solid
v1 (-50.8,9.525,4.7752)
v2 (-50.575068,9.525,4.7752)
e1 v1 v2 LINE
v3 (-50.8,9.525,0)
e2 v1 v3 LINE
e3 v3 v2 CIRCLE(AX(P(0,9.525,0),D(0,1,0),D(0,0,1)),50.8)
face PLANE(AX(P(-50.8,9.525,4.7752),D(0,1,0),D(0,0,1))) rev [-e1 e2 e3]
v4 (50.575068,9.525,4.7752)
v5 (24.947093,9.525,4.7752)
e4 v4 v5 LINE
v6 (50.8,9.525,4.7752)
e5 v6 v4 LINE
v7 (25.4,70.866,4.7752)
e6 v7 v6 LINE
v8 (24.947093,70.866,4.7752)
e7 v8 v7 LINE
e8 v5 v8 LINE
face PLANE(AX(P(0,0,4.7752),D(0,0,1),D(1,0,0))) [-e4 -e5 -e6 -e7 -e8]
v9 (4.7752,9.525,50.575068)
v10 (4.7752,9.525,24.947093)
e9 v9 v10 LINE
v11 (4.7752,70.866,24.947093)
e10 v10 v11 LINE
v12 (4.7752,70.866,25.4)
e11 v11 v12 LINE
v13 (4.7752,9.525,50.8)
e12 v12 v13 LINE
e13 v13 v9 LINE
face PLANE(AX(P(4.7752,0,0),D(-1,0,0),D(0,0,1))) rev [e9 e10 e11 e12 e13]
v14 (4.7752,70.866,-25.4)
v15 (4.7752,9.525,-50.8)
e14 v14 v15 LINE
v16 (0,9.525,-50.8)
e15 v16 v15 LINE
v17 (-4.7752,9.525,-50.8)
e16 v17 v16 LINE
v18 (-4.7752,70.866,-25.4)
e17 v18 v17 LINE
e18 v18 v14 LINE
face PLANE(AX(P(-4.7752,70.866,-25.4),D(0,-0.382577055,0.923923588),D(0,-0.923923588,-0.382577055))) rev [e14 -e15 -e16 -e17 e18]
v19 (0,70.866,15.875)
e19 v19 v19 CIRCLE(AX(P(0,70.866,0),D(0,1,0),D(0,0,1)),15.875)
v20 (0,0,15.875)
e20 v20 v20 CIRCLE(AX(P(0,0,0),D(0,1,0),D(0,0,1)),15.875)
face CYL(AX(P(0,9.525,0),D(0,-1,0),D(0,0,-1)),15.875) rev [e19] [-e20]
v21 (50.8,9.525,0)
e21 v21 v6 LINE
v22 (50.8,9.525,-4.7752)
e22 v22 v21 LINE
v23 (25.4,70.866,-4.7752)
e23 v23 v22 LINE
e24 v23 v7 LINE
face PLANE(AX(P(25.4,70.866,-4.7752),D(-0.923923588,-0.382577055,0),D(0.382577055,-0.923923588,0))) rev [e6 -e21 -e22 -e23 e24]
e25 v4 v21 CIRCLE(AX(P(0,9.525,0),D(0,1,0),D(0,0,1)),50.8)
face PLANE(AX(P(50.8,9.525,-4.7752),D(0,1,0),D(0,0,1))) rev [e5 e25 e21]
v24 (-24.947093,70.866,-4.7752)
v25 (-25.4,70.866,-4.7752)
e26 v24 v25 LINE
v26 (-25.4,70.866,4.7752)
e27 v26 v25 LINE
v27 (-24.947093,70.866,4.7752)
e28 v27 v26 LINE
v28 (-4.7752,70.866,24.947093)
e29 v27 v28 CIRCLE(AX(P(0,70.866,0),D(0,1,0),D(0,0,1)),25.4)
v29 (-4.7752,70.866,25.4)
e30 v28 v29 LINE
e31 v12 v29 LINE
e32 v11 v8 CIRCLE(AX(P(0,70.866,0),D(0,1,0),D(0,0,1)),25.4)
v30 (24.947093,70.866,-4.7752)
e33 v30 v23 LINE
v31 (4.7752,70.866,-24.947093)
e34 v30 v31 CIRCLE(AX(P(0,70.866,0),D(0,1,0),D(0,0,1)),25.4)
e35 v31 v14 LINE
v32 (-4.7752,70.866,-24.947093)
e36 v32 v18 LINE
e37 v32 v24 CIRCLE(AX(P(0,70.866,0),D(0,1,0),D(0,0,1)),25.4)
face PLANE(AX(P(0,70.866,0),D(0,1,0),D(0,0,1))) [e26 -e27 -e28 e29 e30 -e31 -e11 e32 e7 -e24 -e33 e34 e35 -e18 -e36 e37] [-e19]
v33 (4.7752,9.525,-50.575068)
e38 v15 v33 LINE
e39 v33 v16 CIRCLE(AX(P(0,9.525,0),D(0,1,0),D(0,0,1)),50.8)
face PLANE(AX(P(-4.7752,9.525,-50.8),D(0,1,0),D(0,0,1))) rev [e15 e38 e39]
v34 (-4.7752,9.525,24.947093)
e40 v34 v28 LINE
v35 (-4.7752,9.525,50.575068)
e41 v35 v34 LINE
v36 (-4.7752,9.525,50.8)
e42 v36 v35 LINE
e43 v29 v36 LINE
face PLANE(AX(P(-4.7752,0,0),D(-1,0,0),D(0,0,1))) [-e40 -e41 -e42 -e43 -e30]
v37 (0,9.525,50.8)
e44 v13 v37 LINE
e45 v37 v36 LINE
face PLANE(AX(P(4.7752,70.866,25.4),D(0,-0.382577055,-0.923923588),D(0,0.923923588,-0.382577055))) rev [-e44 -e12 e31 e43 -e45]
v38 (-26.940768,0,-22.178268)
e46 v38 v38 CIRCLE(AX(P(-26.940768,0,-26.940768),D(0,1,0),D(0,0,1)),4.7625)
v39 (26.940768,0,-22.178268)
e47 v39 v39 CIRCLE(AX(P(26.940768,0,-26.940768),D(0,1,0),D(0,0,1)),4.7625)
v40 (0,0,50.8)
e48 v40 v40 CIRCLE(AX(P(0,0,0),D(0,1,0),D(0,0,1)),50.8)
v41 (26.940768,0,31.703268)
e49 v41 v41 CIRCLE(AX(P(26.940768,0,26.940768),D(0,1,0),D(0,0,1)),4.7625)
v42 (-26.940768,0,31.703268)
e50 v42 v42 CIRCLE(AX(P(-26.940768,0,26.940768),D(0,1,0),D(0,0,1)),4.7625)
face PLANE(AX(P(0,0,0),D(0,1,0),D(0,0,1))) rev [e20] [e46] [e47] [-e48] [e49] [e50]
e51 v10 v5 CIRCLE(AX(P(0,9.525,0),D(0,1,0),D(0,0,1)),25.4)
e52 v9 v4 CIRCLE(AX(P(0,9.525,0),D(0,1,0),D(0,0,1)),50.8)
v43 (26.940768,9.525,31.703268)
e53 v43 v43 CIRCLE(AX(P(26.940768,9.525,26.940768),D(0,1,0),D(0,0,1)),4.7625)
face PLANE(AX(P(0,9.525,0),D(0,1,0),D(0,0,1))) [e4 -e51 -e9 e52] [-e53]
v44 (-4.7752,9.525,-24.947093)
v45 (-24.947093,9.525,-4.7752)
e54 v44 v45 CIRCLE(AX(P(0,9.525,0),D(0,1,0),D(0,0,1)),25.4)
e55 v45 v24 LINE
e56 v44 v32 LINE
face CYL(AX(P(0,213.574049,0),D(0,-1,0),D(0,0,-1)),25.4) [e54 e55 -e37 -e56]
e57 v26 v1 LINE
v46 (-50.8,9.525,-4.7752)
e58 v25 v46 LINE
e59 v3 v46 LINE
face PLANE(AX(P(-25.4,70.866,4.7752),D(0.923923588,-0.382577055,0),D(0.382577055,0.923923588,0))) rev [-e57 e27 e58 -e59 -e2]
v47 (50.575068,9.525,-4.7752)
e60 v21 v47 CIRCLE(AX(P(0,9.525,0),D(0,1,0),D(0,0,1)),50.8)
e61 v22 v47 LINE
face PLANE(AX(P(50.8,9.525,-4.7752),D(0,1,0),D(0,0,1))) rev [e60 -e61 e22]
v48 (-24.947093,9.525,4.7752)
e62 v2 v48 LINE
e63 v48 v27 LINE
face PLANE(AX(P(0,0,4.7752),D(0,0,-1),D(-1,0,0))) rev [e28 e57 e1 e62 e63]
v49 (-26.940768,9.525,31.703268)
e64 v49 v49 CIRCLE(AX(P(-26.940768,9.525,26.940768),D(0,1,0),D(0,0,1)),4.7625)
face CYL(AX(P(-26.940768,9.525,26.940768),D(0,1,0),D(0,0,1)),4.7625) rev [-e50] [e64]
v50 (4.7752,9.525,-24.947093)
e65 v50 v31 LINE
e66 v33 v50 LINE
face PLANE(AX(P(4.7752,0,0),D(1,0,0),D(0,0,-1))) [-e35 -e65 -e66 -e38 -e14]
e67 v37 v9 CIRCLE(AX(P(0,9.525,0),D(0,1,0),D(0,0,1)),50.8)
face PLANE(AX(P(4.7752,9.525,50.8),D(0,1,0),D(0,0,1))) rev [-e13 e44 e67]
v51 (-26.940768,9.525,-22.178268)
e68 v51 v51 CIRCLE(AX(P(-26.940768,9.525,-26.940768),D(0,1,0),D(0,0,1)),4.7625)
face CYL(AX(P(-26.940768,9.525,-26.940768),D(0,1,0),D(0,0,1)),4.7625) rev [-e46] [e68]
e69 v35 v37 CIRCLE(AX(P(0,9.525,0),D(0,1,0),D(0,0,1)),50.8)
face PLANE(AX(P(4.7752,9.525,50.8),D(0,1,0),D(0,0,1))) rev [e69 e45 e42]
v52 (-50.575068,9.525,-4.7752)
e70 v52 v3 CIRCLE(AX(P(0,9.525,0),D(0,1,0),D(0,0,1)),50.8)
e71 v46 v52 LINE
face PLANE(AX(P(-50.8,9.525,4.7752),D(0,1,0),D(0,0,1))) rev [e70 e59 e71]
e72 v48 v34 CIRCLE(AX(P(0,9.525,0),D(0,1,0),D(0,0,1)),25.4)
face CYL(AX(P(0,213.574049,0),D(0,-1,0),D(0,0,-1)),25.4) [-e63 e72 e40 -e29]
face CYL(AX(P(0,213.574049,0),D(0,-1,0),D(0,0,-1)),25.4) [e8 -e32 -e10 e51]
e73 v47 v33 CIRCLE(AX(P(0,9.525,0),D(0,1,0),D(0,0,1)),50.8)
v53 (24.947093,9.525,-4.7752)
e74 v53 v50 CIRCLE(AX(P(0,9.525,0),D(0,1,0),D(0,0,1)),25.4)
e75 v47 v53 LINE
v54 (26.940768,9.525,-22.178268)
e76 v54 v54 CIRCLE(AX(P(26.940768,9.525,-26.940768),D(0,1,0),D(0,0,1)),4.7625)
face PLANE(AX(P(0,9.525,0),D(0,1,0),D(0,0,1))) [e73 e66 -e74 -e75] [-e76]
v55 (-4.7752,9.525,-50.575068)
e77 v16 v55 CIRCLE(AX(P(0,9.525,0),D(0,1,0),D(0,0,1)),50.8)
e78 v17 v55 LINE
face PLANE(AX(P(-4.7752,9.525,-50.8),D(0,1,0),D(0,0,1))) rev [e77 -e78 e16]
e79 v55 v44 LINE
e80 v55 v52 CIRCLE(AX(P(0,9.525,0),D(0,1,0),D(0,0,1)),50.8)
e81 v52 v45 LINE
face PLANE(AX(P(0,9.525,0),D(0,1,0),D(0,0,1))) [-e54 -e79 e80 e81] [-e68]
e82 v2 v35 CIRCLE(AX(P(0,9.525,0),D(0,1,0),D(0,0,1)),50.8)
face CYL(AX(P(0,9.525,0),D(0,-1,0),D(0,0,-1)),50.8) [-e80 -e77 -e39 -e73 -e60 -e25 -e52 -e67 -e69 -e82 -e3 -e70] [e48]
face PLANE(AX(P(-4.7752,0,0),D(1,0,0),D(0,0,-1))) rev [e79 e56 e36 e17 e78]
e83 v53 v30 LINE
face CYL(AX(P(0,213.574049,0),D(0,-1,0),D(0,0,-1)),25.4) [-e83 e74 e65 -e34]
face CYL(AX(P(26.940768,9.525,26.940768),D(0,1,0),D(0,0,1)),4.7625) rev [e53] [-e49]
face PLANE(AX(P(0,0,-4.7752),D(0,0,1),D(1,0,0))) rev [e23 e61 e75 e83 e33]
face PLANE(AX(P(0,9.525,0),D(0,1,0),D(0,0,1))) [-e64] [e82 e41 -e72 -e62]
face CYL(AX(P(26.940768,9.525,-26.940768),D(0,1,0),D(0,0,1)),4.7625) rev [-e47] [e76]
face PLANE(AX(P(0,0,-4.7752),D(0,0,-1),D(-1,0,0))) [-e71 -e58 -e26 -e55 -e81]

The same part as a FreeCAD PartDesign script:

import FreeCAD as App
import Part
import Sketcher
from FreeCAD import Vector
Q = App.Units.Quantity


def add_polygon(sketch, points):
    """Adds a closed chain of lines whose ends are joined by coincident constraints."""
    first, n = sketch.GeometryCount, len(points)
    for a, b in zip(points, points[1:] + points[:1]):
        sketch.addGeometry(Part.LineSegment(App.Vector(*a, 0), App.Vector(*b, 0)), False)
    for i in range(n):
        sketch.addConstraint(Sketcher.Constraint("Coincident", first + i, 2, first + (i + 1) % n, 1))

doc = App.newDocument("Part")
body = doc.addObject("PartDesign::Body", "Body")

# Sketch on XZ plane
sketch1 = body.newObject("Sketcher::SketchObject", "Sketch")
sketch1.AttachmentSupport = (doc.getObject("XZ_Plane"), [""])
sketch1.MapMode = "FlatFace"
sketch1.addGeometry(Part.Circle(Vector(0, 0, 0), Vector(0, 0, 1), 51), False)
sketch1.addGeometry(Part.Circle(Vector(0, 0, 0), Vector(0, 0, 1), 16), False)
sketch1.addConstraint(Sketcher.Constraint("Coincident", 0, 3, -1, 1))
sketch1.addConstraint(Sketcher.Constraint("Coincident", 1, 3, -1, 1))
sketch1.addConstraint(Sketcher.Constraint("Diameter", 0, Q("4 in")))
sketch1.addConstraint(Sketcher.Constraint("Diameter", 1, Q("1.25 in")))
pad1 = body.newObject("PartDesign::Pad", "Pad")
pad1.Profile = sketch1
pad1.Length = Q("0.375 in")
pad1.Reversed = True

# Sketch on XZ plane
sketch2 = body.newObject("Sketcher::SketchObject", "Sketch001")
sketch2.AttachmentSupport = (doc.getObject("XZ_Plane"), [""])
sketch2.MapMode = "FlatFace"
sketch2.AttachmentOffset = App.Placement(Vector(0, 0, -0.375 * 25.4), App.Rotation())
sketch2.addGeometry(Part.Circle(Vector(0, 0, 0), Vector(0, 0, 1), 25), False)
sketch2.addGeometry(Part.Circle(Vector(0, 0, 0), Vector(0, 0, 1), 16), False)
sketch2.addConstraint(Sketcher.Constraint("Coincident", 0, 3, -1, 1))
sketch2.addConstraint(Sketcher.Constraint("Coincident", 1, 3, -1, 1))
sketch2.addConstraint(Sketcher.Constraint("Diameter", 0, Q("2 in")))
sketch2.addConstraint(Sketcher.Constraint("Diameter", 1, Q("1.25 in")))
pad2 = body.newObject("PartDesign::Pad", "Pad001")
pad2.Profile = sketch2
pad2.Length = Q("2.415 in")
pad2.Reversed = True

# Sketch on XY plane
sketch3 = body.newObject("Sketcher::SketchObject", "Sketch002")
sketch3.AttachmentSupport = (doc.getObject("XY_Plane"), [""])
sketch3.MapMode = "FlatFace"
add_polygon(sketch3, [(-25.4, 70.9), (-50.8, 9.5), (-22.6, 9.5), (-22.6, 70.9)])  # lines 0-3
sketch3.addConstraint(Sketcher.Constraint("Horizontal", 1))
sketch3.addConstraint(Sketcher.Constraint("Vertical", 2))
sketch3.addConstraint(Sketcher.Constraint("Horizontal", 3))
sketch3.addConstraint(Sketcher.Constraint("DistanceX", 0, 2, -1, 1, Q("2 in")))
sketch3.addConstraint(Sketcher.Constraint("DistanceX", 3, 2, -1, 1, Q("1 in")))
sketch3.addConstraint(Sketcher.Constraint("DistanceY", 2, 1, 2, 2, Q("2.415 in")))
sketch3.addConstraint(Sketcher.Constraint("DistanceY", -1, 1, 2, 2, Q("2.79 in")))
sketch3.addConstraint(Sketcher.Constraint("DistanceX", 1, 1, 1, 2, 28.216634))
pad3 = body.newObject("PartDesign::Pad", "Pad002")
pad3.Profile = sketch3
pad3.Length = Q("0.376 in")
pad3.Midplane = True

# Sketch on YZ plane
sketch4 = body.newObject("Sketcher::SketchObject", "Sketch003")
sketch4.AttachmentSupport = (doc.getObject("YZ_Plane"), [""])
sketch4.MapMode = "FlatFace"
sketch4.AttachmentOffset = App.Placement(Vector(0, 0, -26.940768), App.Rotation())
add_polygon(sketch4, [(-12.4, 26.9), (9.5, 26.9), (9.5, 31.7), (-9.5, 31.7)])  # lines 0-3
sketch4.addGeometry(Part.LineSegment(Vector(9.5, 26.9, 0), Vector(-12.4, 26.9, 0)), True)  # axis
sketch4.addConstraint(Sketcher.Constraint("Horizontal", 0))
sketch4.addConstraint(Sketcher.Constraint("Vertical", 1))
sketch4.addConstraint(Sketcher.Constraint("Horizontal", 2))
sketch4.addConstraint(Sketcher.Constraint("Horizontal", 4))
sketch4.addConstraint(Sketcher.Constraint("Coincident", 4, 1, 0, 2))
sketch4.addConstraint(Sketcher.Constraint("Equal", 0, 4))
sketch4.addConstraint(Sketcher.Constraint("Angle", 3, Q("-121 deg")))
sketch4.addConstraint(Sketcher.Constraint("DistanceX", 2, 2, 2, 1, Q("0.75 in")))
sketch4.addConstraint(Sketcher.Constraint("DistanceY", 1, 1, 1, 2, Q("0.1875 in")))
sketch4.addConstraint(Sketcher.Constraint("DistanceX", -1, 1, 0, 2, Q("0.375 in")))
sketch4.addConstraint(Sketcher.Constraint("DistanceY", -1, 1, 0, 2, 26.940768))
groove = body.newObject("PartDesign::Groove", "Groove")
groove.Profile = sketch4
groove.ReferenceAxis = (sketch4, ["Axis0"])
groove.Angle = 360
doc.recompute()

polarpattern = body.newObject("PartDesign::PolarPattern", "PolarPattern")
polarpattern.Originals = [pad3, groove]
polarpattern.Axis = (doc.getObject("Y_Axis"), [""])
polarpattern.Angle = 360
polarpattern.Occurrences = 4
body.Tip = polarpattern

doc.recompute()
